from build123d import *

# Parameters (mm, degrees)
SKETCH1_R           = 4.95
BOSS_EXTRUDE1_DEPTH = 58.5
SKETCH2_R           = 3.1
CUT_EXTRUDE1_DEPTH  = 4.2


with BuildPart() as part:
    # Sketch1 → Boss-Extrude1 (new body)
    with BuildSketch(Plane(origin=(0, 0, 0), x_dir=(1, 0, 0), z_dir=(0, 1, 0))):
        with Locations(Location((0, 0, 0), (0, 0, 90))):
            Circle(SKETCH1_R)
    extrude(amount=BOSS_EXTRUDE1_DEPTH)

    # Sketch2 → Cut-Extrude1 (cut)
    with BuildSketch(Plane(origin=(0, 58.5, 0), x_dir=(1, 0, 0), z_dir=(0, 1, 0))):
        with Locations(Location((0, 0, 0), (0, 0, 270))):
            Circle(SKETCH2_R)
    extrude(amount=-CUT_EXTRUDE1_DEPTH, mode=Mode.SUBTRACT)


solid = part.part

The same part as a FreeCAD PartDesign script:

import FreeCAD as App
import Part
import Sketcher
from FreeCAD import Vector
Q = App.Units.Quantity

doc = App.newDocument("Part")
body = doc.addObject("PartDesign::Body", "Body")

# Sketch on XZ plane
sketch1 = doc.addObject("Sketcher::SketchObject", "Sketch")
body.addObject(sketch1)
sketch1.AttachmentSupport = (doc.XZ_Plane, [""])
sketch1.MapMode = "FlatFace"
sketch1.addGeometry(Part.Circle(Vector(0, 0, 0), Vector(0, 0, 1), 5), False)
sketch1.addConstraint([
    Sketcher.Constraint("Coincident", 0, 3, -1, 1),
    Sketcher.Constraint("Diameter", 0, Q("9.9 mm")),
])
pad1 = doc.addObject("PartDesign::Pad", "Pad")
body.addObject(pad1)
pad1.Profile = sketch1
pad1.Length = 58.5
pad1.Reversed = True

# Sketch on XZ plane
sketch2 = doc.addObject("Sketcher::SketchObject", "Sketch001")
body.addObject(sketch2)
sketch2.AttachmentSupport = (doc.XZ_Plane, [""])
sketch2.MapMode = "FlatFace"
sketch2.AttachmentOffset = App.Placement(Vector(0, 0, -58.5), App.Rotation())
sketch2.addGeometry(Part.Circle(Vector(0, 0, 0), Vector(0, 0, 1), 3.1), False)
sketch2.addConstraint([
    Sketcher.Constraint("Coincident", 0, 3, -1, 1),
    Sketcher.Constraint("Diameter", 0, Q("6.2 mm")),
])
pocket1 = doc.addObject("PartDesign::Pocket", "Pocket")
body.addObject(pocket1)
pocket1.Profile = sketch2
pocket1.Length = 4.2
pocket1.Reversed = True

doc.recompute()
